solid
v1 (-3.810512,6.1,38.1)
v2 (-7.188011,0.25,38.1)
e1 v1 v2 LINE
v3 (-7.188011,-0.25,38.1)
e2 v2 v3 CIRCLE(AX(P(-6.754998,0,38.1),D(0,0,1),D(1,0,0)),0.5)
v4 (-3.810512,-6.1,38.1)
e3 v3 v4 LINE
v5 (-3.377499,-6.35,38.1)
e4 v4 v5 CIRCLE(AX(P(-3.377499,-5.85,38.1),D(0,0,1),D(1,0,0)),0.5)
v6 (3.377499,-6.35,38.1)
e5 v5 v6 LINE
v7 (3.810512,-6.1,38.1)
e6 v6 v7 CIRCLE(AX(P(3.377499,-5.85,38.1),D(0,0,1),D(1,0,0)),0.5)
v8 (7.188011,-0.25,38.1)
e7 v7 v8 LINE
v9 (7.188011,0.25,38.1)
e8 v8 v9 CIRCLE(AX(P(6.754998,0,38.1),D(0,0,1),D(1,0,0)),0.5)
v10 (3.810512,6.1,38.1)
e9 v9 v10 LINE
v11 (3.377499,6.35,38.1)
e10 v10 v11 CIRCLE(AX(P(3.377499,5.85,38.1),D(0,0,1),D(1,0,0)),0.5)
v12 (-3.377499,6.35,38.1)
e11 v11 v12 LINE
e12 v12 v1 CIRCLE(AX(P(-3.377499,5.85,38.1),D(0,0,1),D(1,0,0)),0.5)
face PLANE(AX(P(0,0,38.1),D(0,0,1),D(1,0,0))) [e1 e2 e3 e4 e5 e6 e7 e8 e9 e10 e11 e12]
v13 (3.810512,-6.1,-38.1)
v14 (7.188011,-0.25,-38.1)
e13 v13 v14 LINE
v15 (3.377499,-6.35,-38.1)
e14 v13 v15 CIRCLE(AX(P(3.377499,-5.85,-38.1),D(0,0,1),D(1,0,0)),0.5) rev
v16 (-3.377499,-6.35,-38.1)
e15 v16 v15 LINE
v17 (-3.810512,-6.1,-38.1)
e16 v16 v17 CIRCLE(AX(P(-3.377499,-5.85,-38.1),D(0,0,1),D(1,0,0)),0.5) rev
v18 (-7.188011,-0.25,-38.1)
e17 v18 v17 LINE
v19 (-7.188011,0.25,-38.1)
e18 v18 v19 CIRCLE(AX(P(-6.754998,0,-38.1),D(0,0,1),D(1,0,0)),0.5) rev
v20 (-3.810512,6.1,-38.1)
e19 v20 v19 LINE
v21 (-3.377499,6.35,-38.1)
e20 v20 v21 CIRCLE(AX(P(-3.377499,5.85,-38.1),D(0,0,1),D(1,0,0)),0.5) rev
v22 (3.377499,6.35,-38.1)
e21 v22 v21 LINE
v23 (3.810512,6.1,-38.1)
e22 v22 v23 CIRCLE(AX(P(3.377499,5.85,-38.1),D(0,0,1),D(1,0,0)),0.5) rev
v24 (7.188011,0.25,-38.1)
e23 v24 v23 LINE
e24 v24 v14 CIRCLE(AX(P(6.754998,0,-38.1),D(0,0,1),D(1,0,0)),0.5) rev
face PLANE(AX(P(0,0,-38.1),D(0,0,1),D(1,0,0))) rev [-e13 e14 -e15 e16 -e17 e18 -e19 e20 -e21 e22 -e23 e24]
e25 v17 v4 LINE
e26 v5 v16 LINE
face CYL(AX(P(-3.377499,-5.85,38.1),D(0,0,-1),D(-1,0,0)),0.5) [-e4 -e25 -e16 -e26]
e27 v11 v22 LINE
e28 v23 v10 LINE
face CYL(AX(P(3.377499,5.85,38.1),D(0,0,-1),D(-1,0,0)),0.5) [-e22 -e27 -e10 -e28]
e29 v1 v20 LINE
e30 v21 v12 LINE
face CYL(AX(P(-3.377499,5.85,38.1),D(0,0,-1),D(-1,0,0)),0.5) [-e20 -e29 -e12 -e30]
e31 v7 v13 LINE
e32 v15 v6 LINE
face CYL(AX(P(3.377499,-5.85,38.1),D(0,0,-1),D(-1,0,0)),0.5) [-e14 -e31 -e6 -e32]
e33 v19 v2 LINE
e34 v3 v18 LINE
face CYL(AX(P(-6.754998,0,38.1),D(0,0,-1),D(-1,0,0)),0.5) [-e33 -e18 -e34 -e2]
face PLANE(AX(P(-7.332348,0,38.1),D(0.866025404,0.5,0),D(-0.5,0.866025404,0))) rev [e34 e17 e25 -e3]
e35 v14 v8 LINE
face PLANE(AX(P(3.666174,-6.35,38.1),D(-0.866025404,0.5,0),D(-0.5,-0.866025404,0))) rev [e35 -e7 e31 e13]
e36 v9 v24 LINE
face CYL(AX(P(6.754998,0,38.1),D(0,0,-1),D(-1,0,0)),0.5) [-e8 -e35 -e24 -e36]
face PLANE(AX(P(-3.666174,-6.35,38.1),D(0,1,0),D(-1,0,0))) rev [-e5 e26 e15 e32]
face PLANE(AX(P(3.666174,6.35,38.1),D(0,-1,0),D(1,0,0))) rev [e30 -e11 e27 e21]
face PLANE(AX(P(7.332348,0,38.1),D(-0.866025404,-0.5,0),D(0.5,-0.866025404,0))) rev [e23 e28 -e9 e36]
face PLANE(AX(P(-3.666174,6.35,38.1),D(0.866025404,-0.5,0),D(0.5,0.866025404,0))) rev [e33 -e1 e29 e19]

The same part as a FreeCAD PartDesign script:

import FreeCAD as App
import Part
import Sketcher
Q = App.Units.Quantity


def edges_at(feature, points):
    """Names of the edges that pass closest to the given points."""
    edges = feature.Shape.Edges
    near = lambda p: min(range(len(edges)), key=lambda i: edges[i].distToShape(Part.Vertex(*p))[0])
    return sorted({f"Edge{near(p) + 1}" for p in points})

doc = App.newDocument("Part")
body = doc.addObject("PartDesign::Body", "Body")

sketch1 = body.newObject("Sketcher::SketchObject", "Sketch")
sketch1.AttachmentSupport = (doc.getObject("XY_Plane"), [""])
sketch1.MapMode = "FlatFace"
sketch1.addGeometry([
    Part.LineSegment(App.Vector(7, 0, 0), App.Vector(4, 6, 0)),
    Part.LineSegment(App.Vector(4, 6, 0), App.Vector(-4, 6, 0)),
    Part.LineSegment(App.Vector(-4, 6, 0), App.Vector(-7, 0, 0)),
    Part.LineSegment(App.Vector(-7, 0, 0), App.Vector(-4, -6, 0)),
    Part.LineSegment(App.Vector(-4, -6, 0), App.Vector(4, -6, 0)),
    Part.LineSegment(App.Vector(4, -6, 0), App.Vector(7, 0, 0)),
], False)
sketch1.addConstraint([
    Sketcher.Constraint("Coincident", 0, 2, 1, 1),
    Sketcher.Constraint("Coincident", 1, 2, 2, 1),
    Sketcher.Constraint("Coincident", 2, 2, 3, 1),
    Sketcher.Constraint("Coincident", 3, 2, 4, 1),
    Sketcher.Constraint("Coincident", 4, 2, 5, 1),
    Sketcher.Constraint("Coincident", 5, 2, 0, 1),
    Sketcher.Constraint("Horizontal", 1),
    Sketcher.Constraint("Horizontal", 4),
    Sketcher.Constraint("Symmetric", 0, 2, 3, 2, -1, 1),
    Sketcher.Constraint("Symmetric", 2, 2, 5, 2, -1, 1),
    Sketcher.Constraint("PointOnObject", 2, 2, -1),
    Sketcher.Constraint("Parallel", 2, 5),
    Sketcher.Constraint("Vertical", 1, 2, 3, 2),
    Sketcher.Constraint("Angle", 0, Q("120 deg")),
    Sketcher.Constraint("DistanceY", 3, 2, 1, 2, Q("12.7 mm")),
    Sketcher.Constraint("DistanceX", 1, 2, 1, 1, Q("7.332348 mm")),
])
pad1 = body.newObject("PartDesign::Pad", "Pad")
pad1.Profile = sketch1
pad1.Length = 76.2
pad1.Midplane = True
doc.recompute()

fillet = body.newObject("PartDesign::Fillet", "Fillet")
fillet.Base = (pad1, edges_at(pad1, [
    (3.666, -6.35, 0),
    (-3.666, -6.35, 0),
    (-7.332, 0, 0),
    (-3.666, 6.35, 0),
    (3.666, 6.35, 0),
    (7.332, 0, 0),
]))
fillet.Radius = 0.5

doc.recompute()
